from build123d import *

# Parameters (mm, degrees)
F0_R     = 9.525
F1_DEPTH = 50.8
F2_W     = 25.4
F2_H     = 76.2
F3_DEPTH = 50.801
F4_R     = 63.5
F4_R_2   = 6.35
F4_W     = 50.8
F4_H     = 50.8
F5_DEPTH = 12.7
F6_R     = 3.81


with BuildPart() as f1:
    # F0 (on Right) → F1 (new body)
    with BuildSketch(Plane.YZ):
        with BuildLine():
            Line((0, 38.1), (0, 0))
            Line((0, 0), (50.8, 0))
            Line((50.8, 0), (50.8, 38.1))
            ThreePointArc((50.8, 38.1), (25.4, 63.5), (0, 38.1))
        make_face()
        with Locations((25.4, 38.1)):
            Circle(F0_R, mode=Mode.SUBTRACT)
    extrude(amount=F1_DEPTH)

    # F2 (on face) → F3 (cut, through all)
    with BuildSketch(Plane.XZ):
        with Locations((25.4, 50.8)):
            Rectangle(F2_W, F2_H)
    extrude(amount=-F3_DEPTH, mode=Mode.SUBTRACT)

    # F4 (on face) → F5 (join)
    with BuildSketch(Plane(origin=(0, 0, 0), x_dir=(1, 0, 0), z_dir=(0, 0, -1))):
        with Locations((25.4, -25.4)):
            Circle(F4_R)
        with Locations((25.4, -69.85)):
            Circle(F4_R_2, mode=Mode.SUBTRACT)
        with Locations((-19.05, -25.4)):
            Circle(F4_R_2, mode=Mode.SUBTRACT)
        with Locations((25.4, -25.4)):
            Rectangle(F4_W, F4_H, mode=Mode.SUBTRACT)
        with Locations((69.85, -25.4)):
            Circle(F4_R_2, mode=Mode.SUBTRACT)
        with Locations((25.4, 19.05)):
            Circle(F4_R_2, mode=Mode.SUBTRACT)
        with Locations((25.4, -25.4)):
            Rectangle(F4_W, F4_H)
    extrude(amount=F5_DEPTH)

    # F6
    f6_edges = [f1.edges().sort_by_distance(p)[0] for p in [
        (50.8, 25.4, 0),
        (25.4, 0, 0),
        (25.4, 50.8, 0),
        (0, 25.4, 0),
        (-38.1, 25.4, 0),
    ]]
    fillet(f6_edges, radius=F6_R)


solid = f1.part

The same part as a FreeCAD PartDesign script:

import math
import FreeCAD as App
import Part
import Sketcher
Q = App.Units.Quantity


def edges_at(feature, points):
    """Names of the edges that pass closest to the given points."""
    edges = feature.Shape.Edges
    near = lambda p: min(range(len(edges)), key=lambda i: edges[i].distToShape(Part.Vertex(*p))[0])
    return sorted({f"Edge{near(p) + 1}" for p in points})

doc = App.newDocument("Part")
body = doc.addObject("PartDesign::Body", "Body")

sketch1 = body.newObject("Sketcher::SketchObject", "Sketch")
sketch1.AttachmentSupport = (doc.getObject("YZ_Plane"), [""])
sketch1.MapMode = "FlatFace"
sketch1.addGeometry([
    Part.LineSegment(App.Vector(0, 38, 0), App.Vector(0, 0, 0)),
    Part.LineSegment(App.Vector(0, 0, 0), App.Vector(51, 0, 0)),
    Part.LineSegment(App.Vector(51, 0, 0), App.Vector(51, 38, 0)),
    Part.ArcOfCircle(Part.Circle(App.Vector(25, 38, 0), App.Vector(0, 0, 1), 25), math.radians(0), math.radians(180)),
    Part.Circle(App.Vector(25, 38, 0), App.Vector(0, 0, 1), 10),
], False)
sketch1.addConstraint([
    Sketcher.Constraint("Coincident", 0, 2, 1, 1),
    Sketcher.Constraint("Coincident", 1, 2, 2, 1),
    Sketcher.Constraint("Tangent", 2, 2, 3, 1),
    Sketcher.Constraint("Tangent", 3, 2, 0, 1),
    Sketcher.Constraint("Vertical", 0),
    Sketcher.Constraint("Horizontal", 1),
    Sketcher.Constraint("Vertical", 2),
    Sketcher.Constraint("Coincident", 0, 2, -1, 1),
    Sketcher.Constraint("Coincident", 4, 3, 3, 3),
    Sketcher.Constraint("Radius", 3, Q("1 in")),
    Sketcher.Constraint("Diameter", 4, Q("0.75 in")),
    Sketcher.Constraint("DistanceY", 0, 2, 0, 1, Q("1.5 in")),
])
pad1 = body.newObject("PartDesign::Pad", "Pad")
pad1.Profile = sketch1
pad1.Length = Q("2 in")

sketch2 = body.newObject("Sketcher::SketchObject", "Sketch001")
sketch2.AttachmentSupport = (doc.getObject("XZ_Plane"), [""])
sketch2.MapMode = "FlatFace"
sketch2.addGeometry([
    Part.LineSegment(App.Vector(13, 89, 0), App.Vector(13, 13, 0)),
    Part.LineSegment(App.Vector(13, 13, 0), App.Vector(38, 13, 0)),
    Part.LineSegment(App.Vector(38, 13, 0), App.Vector(38, 89, 0)),
    Part.LineSegment(App.Vector(38, 89, 0), App.Vector(13, 89, 0)),
], False)
sketch2.addConstraint([
    Sketcher.Constraint("Coincident", 0, 2, 1, 1),
    Sketcher.Constraint("Coincident", 1, 2, 2, 1),
    Sketcher.Constraint("Coincident", 2, 2, 3, 1),
    Sketcher.Constraint("Coincident", 3, 2, 0, 1),
    Sketcher.Constraint("Vertical", 0),
    Sketcher.Constraint("Horizontal", 1),
    Sketcher.Constraint("Vertical", 2),
    Sketcher.Constraint("Horizontal", 3),
    Sketcher.Constraint("DistanceX", 1, 1, 1, 2, Q("1 in")),
    Sketcher.Constraint("DistanceY", 0, 2, 0, 1, Q("3 in")),
    Sketcher.Constraint("DistanceX", -1, 1, 0, 2, Q("0.5 in")),
    Sketcher.Constraint("DistanceY", -1, 1, 0, 2, Q("0.5 in")),
])
pocket1 = body.newObject("PartDesign::Pocket", "Pocket")
pocket1.Profile = sketch2
pocket1.Type = "ThroughAll"

sketch3 = body.newObject("Sketcher::SketchObject", "Sketch002")
sketch3.AttachmentSupport = (doc.getObject("XY_Plane"), [""])
sketch3.MapMode = "FlatFace"
sketch3.addGeometry([
    Part.Circle(App.Vector(25, 25, 0), App.Vector(0, 0, 1), 64),
    Part.Circle(App.Vector(-19, 25, 0), App.Vector(0, 0, 1), 6),
    Part.Circle(App.Vector(25, 70, 0), App.Vector(0, 0, 1), 6),
    Part.Circle(App.Vector(70, 25, 0), App.Vector(0, 0, 1), 6),
    Part.Circle(App.Vector(25, -19, 0), App.Vector(0, 0, 1), 6),
], False)
sketch3.addConstraint([
    Sketcher.Constraint("Equal", 1, 2),
    Sketcher.Constraint("Equal", 2, 3),
    Sketcher.Constraint("Equal", 3, 4),
    Sketcher.Constraint("Horizontal", 0, 3, 1, 3),
    Sketcher.Constraint("Horizontal", 1, 3, 3, 3),
    Sketcher.Constraint("Vertical", 0, 3, 2, 3),
    Sketcher.Constraint("Vertical", 2, 3, 4, 3),
    Sketcher.Constraint("Diameter", 0, Q("5 in")),
    Sketcher.Constraint("Diameter", 1, Q("0.5 in")),
    Sketcher.Constraint("DistanceX", -1, 1, 0, 3, Q("1 in")),
    Sketcher.Constraint("DistanceY", -1, 1, 0, 3, Q("1 in")),
    Sketcher.Constraint("DistanceX", 1, 3, 3, 3, Q("3.5 in")),
    Sketcher.Constraint("DistanceY", 4, 3, 2, 3, Q("3.5 in")),
    Sketcher.Constraint("DistanceX", 1, 3, -1, 1, Q("0.75 in")),
    Sketcher.Constraint("DistanceY", -1, 1, 2, 3, Q("2.75 in")),
])
pad2 = body.newObject("PartDesign::Pad", "Pad001")
pad2.Profile = sketch3
pad2.Length = Q("0.5 in")
pad2.Reversed = True
doc.recompute()

fillet = body.newObject("PartDesign::Fillet", "Fillet")
fillet.Base = (pad2, edges_at(pad2, [
    (50.8, 25.4, 0),
    (25.4, 0, 0),
    (25.4, 50.8, 0),
    (0, 25.4, 0),
    (-38.1, 25.4, 0),
]))
fillet.Radius = Q("0.15 in")

doc.recompute()
